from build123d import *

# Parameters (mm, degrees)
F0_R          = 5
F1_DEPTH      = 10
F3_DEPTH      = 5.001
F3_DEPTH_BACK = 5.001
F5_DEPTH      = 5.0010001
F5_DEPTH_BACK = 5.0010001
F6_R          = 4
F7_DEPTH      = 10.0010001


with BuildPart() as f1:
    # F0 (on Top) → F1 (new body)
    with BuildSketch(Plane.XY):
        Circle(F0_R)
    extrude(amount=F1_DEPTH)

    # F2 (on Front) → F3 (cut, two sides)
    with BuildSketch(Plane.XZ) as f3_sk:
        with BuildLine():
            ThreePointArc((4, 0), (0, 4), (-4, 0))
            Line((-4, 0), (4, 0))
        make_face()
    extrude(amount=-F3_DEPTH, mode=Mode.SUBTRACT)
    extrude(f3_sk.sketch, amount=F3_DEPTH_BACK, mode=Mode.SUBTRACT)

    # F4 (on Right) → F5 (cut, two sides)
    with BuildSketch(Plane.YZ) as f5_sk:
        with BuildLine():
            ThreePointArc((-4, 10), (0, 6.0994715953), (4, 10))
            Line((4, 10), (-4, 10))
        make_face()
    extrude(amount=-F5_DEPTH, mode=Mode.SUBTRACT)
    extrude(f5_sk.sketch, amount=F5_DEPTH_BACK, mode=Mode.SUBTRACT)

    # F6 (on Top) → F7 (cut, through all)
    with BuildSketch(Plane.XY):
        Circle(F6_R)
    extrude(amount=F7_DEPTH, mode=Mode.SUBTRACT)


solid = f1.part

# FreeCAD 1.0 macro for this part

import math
import FreeCAD as App
import Part
import Sketcher

doc = App.newDocument("Part")
body = doc.addObject("PartDesign::Body", "Body")

# Sketch on XY plane
sketch1 = body.newObject("Sketcher::SketchObject", "Sketch")
sketch1.AttachmentSupport = (doc.getObject("XY_Plane"), [""])
sketch1.MapMode = "FlatFace"
sketch1.addGeometry(Part.Circle(App.Vector(0, 0, 0), App.Vector(0, 0, 1), 5), False)
sketch1.addConstraint([
    Sketcher.Constraint("Coincident", 0, 3, -1, 1),
    Sketcher.Constraint("Diameter", 0, 10.0),
])
pad1 = body.newObject("PartDesign::Pad", "Pad")
pad1.Profile = sketch1
pad1.Length = 10

# Sketch on XZ plane
sketch2 = body.newObject("Sketcher::SketchObject", "Sketch001")
sketch2.AttachmentSupport = (doc.getObject("XZ_Plane"), [""])
sketch2.MapMode = "FlatFace"
sketch2.addGeometry([
    Part.ArcOfCircle(Part.Circle(App.Vector(0, 0, 0), App.Vector(0, 0, 1), 4), math.radians(0), math.radians(180)),
    Part.LineSegment(App.Vector(-4, 0, 0), App.Vector(4, 0, 0)),
], False)
sketch2.addConstraint([
    Sketcher.Constraint("Coincident", 0, 1, 1, 2),
    Sketcher.Constraint("Coincident", 1, 1, 0, 2),
    Sketcher.Constraint("Horizontal", 1),
    Sketcher.Constraint("Coincident", 0, 3, -1, 1),
    Sketcher.Constraint("PointOnObject", 0, 1, -1),
    Sketcher.Constraint("Radius", 0, 4.0),
])
pocket1 = body.newObject("PartDesign::Pocket", "Pocket")
pocket1.Profile = sketch2
pocket1.Type = "ThroughAll"
pocket1.Midplane = True

# Sketch on YZ plane
sketch3 = body.newObject("Sketcher::SketchObject", "Sketch002")
sketch3.AttachmentSupport = (doc.getObject("YZ_Plane"), [""])
sketch3.MapMode = "FlatFace"
sketch3.addGeometry([
    Part.ArcOfCircle(Part.Circle(App.Vector(0, 10.1, 0), App.Vector(0, 0, 1), 4), math.radians(-179), math.radians(-1)),
    Part.LineSegment(App.Vector(4, 10, 0), App.Vector(-4, 10, 0)),
], False)
sketch3.addConstraint([
    Sketcher.Constraint("Coincident", 0, 1, 1, 2),
    Sketcher.Constraint("Coincident", 1, 1, 0, 2),
    Sketcher.Constraint("Horizontal", 1),
    Sketcher.Constraint("PointOnObject", 0, 3, -2),
    Sketcher.Constraint("DistanceX", 1, 2, 1, 1, 8.0),
    Sketcher.Constraint("DistanceY", -1, 1, 0, 1, 10.0),
    Sketcher.Constraint("Radius", 0, 4.001268),
])
pocket2 = body.newObject("PartDesign::Pocket", "Pocket001")
pocket2.Profile = sketch3
pocket2.Type = "ThroughAll"
pocket2.Midplane = True

# Sketch on XY plane
sketch4 = body.newObject("Sketcher::SketchObject", "Sketch003")
sketch4.AttachmentSupport = (doc.getObject("XY_Plane"), [""])
sketch4.MapMode = "FlatFace"
sketch4.addGeometry(Part.Circle(App.Vector(0, 0, 0), App.Vector(0, 0, 1), 4), False)
sketch4.addConstraint([
    Sketcher.Constraint("Coincident", 0, 3, -1, 1),
    Sketcher.Constraint("Diameter", 0, 8.0),
])
pocket3 = body.newObject("PartDesign::Pocket", "Pocket002")
pocket3.Profile = sketch4
pocket3.Length = 10.001
pocket3.Reversed = True

doc.recompute()
